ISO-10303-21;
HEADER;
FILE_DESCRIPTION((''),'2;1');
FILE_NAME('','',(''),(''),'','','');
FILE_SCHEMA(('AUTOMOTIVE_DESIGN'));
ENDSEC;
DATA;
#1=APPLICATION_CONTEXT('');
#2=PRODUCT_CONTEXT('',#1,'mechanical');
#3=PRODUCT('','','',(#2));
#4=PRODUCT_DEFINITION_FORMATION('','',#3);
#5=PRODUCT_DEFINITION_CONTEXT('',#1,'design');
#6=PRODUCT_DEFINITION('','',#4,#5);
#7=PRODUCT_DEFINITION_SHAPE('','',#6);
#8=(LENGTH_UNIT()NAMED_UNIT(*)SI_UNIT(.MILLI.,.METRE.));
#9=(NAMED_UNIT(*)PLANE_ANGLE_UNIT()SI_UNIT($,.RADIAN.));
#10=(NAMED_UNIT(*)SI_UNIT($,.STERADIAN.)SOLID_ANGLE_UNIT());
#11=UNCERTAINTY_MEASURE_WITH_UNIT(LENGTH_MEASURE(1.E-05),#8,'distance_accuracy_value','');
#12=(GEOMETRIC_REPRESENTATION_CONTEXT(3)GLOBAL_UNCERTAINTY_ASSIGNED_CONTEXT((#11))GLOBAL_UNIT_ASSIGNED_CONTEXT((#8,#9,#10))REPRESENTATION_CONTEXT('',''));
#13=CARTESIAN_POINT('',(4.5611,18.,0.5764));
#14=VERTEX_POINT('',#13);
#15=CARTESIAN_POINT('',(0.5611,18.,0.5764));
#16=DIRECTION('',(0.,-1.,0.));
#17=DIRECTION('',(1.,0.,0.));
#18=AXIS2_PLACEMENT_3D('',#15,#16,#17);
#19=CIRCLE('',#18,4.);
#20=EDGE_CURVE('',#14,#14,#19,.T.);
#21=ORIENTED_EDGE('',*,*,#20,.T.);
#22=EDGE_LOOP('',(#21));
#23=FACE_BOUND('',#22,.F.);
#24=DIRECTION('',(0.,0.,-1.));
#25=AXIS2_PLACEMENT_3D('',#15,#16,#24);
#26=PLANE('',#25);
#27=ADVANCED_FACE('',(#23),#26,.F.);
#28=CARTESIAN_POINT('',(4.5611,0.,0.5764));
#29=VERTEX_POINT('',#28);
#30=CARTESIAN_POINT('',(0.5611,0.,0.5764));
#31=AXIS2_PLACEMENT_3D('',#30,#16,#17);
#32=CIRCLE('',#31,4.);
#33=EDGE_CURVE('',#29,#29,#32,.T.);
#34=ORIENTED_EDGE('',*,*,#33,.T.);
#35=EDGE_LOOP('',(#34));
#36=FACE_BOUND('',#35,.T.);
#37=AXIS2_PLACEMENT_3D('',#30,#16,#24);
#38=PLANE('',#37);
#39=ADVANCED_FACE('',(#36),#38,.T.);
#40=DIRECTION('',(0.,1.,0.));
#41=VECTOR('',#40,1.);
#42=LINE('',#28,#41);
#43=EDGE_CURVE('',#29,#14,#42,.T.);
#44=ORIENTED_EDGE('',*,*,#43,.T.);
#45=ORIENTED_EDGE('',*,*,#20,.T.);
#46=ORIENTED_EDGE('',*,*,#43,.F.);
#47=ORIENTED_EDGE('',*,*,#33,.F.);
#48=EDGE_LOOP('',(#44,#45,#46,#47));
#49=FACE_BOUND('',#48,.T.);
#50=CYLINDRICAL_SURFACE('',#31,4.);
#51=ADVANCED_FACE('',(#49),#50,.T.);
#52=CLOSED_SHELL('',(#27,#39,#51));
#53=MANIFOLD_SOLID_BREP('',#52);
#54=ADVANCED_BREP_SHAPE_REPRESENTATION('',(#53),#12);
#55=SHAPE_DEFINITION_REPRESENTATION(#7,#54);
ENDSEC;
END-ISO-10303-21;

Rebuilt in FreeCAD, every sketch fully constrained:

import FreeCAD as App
import Part
import Sketcher

V = App.Vector
Q = App.Units.Quantity

doc = App.newDocument("Part")
body = doc.addObject("PartDesign::Body", "Body")

# Sketch on XZ plane
sketch1 = body.newObject("Sketcher::SketchObject", "Sketch")
sketch1.AttachmentSupport = (doc.getObject("XZ_Plane"), [""])
sketch1.MapMode = "FlatFace"
sketch1.addGeometry(Part.Circle(V(0.5611, 0.5764, 0), V(0, 0, 1), 4), False)
sketch1.addConstraint([
    Sketcher.Constraint("Diameter", 0, Q("8 mm")),
    Sketcher.Constraint("DistanceX", -1, 1, 0, 3, Q("0.561 mm")),
    Sketcher.Constraint("DistanceY", -1, 1, 0, 3, Q("0.5764 mm")),
])
pad1 = body.newObject("PartDesign::Pad", "Pad")
pad1.Profile = sketch1
pad1.Length = 18
pad1.Reversed = True

doc.recompute()
